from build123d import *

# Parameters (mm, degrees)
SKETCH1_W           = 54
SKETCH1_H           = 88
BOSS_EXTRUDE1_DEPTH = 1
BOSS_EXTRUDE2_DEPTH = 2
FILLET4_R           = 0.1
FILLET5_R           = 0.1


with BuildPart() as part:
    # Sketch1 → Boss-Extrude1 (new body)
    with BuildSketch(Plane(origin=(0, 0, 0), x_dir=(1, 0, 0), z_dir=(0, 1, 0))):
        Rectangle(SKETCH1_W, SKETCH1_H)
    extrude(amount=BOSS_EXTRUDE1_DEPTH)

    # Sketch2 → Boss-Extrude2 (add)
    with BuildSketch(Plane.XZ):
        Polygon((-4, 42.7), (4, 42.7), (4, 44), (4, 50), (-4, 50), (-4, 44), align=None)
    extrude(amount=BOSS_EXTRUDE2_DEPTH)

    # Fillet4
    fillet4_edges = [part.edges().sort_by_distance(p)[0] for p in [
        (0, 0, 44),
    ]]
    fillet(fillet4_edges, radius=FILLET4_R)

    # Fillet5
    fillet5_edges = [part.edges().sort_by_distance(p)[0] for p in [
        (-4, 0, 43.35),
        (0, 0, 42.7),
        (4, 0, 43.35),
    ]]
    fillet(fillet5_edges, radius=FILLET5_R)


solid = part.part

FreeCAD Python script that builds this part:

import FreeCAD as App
import Part
import Sketcher
from FreeCAD import Vector


def edges_at(feature, points):
    """Names of the edges that pass closest to the given points."""
    edges = feature.Shape.Edges
    near = lambda p: min(range(len(edges)), key=lambda i: edges[i].distToShape(Part.Vertex(*p))[0])
    return sorted({f"Edge{near(p) + 1}" for p in points})

doc = App.newDocument("Part")
params = doc.addObject("Spreadsheet::Sheet", "Params")
for row, (alias, value) in enumerate([
    ("sketch1_width", "54 mm"),
    ("sketch1_height", "88 mm"),
    ("pad1_length", "1 mm"),
    ("sketch2_width", "8 mm"),
    ("sketch2_height", "7.3 mm"),
    ("pad2_length", "2 mm"),
    ("fillet_radius", "0.1 mm"),
    ("fillet2_radius", "0.1 mm"),
], start=1):
    params.set(f"A{row}", alias)
    params.set(f"B{row}", "=" + value)
    params.setAlias(f"B{row}", alias)

body = doc.addObject("PartDesign::Body", "Body")

sketch1 = body.newObject("Sketcher::SketchObject", "Sketch")
sketch1.AttachmentSupport = (doc.getObject("XZ_Plane"), [""])
sketch1.MapMode = "FlatFace"
sketch1.addGeometry([
    Part.LineSegment(Vector(-27, -44, 0), Vector(-27, 44, 0)),
    Part.LineSegment(Vector(-27, 44, 0), Vector(27, 44, 0)),
    Part.LineSegment(Vector(27, 44, 0), Vector(27, -44, 0)),
    Part.LineSegment(Vector(27, -44, 0), Vector(-27, -44, 0)),
], False)
sketch1.addConstraint([
    Sketcher.Constraint("Coincident", 0, 2, 1, 1),
    Sketcher.Constraint("Coincident", 1, 2, 2, 1),
    Sketcher.Constraint("Coincident", 2, 2, 3, 1),
    Sketcher.Constraint("Coincident", 3, 2, 0, 1),
    Sketcher.Constraint("Vertical", 0),
    Sketcher.Constraint("Horizontal", 1),
    Sketcher.Constraint("Vertical", 2),
    Sketcher.Constraint("Horizontal", 3),
    Sketcher.Constraint("Symmetric", 0, 2, 2, 2, -1, 1),
    Sketcher.Constraint("DistanceX", 1, 1, 1, 2, 54.0),
    Sketcher.Constraint("DistanceY", 0, 1, 0, 2, 88.0),
])
sketch1.setExpression("Constraints[9]", "Params.sketch1_width")
sketch1.setExpression("Constraints[10]", "Params.sketch1_height")
pad1 = body.newObject("PartDesign::Pad", "Pad")
pad1.Profile = sketch1
pad1.setExpression("Length", "Params.pad1_length")
pad1.Reversed = True

sketch2 = body.newObject("Sketcher::SketchObject", "Sketch001")
sketch2.AttachmentSupport = (doc.getObject("XZ_Plane"), [""])
sketch2.MapMode = "FlatFace"
sketch2.addGeometry([
    Part.LineSegment(Vector(-4, 43, 0), Vector(4, 43, 0)),
    Part.LineSegment(Vector(4, 43, 0), Vector(4, 50, 0)),
    Part.LineSegment(Vector(4, 50, 0), Vector(-4, 50, 0)),
    Part.LineSegment(Vector(-4, 50, 0), Vector(-4, 43, 0)),
], False)
sketch2.addConstraint([
    Sketcher.Constraint("Coincident", 0, 2, 1, 1),
    Sketcher.Constraint("Coincident", 1, 2, 2, 1),
    Sketcher.Constraint("Coincident", 2, 2, 3, 1),
    Sketcher.Constraint("Coincident", 3, 2, 0, 1),
    Sketcher.Constraint("Horizontal", 0),
    Sketcher.Constraint("Vertical", 1),
    Sketcher.Constraint("Horizontal", 2),
    Sketcher.Constraint("Vertical", 3),
    Sketcher.Constraint("DistanceX", 0, 1, 0, 2, 8.0),
    Sketcher.Constraint("DistanceY", 1, 1, 1, 2, 7.3),
    Sketcher.Constraint("DistanceX", -1, 1, 0, 2, 4.0),
    Sketcher.Constraint("DistanceY", -1, 1, 1, 2, 50.0),
])
sketch2.setExpression("Constraints[8]", "Params.sketch2_width")
sketch2.setExpression("Constraints[9]", "Params.sketch2_height")
pad2 = body.newObject("PartDesign::Pad", "Pad001")
pad2.Profile = sketch2
pad2.setExpression("Length", "Params.pad2_length")
doc.recompute()

fillet = body.newObject("PartDesign::Fillet", "Fillet")
fillet.Base = (pad2, edges_at(pad2, [(0, 0, 44)]))
fillet.setExpression("Radius", "Params.fillet_radius")
doc.recompute()

fillet2 = body.newObject("PartDesign::Fillet", "Fillet001")
fillet2.Base = (fillet, edges_at(fillet, [(-4, 0, 43.35), (0, 0, 42.7), (4, 0, 43.35)]))
fillet2.setExpression("Radius", "Params.fillet2_radius")

doc.recompute()
